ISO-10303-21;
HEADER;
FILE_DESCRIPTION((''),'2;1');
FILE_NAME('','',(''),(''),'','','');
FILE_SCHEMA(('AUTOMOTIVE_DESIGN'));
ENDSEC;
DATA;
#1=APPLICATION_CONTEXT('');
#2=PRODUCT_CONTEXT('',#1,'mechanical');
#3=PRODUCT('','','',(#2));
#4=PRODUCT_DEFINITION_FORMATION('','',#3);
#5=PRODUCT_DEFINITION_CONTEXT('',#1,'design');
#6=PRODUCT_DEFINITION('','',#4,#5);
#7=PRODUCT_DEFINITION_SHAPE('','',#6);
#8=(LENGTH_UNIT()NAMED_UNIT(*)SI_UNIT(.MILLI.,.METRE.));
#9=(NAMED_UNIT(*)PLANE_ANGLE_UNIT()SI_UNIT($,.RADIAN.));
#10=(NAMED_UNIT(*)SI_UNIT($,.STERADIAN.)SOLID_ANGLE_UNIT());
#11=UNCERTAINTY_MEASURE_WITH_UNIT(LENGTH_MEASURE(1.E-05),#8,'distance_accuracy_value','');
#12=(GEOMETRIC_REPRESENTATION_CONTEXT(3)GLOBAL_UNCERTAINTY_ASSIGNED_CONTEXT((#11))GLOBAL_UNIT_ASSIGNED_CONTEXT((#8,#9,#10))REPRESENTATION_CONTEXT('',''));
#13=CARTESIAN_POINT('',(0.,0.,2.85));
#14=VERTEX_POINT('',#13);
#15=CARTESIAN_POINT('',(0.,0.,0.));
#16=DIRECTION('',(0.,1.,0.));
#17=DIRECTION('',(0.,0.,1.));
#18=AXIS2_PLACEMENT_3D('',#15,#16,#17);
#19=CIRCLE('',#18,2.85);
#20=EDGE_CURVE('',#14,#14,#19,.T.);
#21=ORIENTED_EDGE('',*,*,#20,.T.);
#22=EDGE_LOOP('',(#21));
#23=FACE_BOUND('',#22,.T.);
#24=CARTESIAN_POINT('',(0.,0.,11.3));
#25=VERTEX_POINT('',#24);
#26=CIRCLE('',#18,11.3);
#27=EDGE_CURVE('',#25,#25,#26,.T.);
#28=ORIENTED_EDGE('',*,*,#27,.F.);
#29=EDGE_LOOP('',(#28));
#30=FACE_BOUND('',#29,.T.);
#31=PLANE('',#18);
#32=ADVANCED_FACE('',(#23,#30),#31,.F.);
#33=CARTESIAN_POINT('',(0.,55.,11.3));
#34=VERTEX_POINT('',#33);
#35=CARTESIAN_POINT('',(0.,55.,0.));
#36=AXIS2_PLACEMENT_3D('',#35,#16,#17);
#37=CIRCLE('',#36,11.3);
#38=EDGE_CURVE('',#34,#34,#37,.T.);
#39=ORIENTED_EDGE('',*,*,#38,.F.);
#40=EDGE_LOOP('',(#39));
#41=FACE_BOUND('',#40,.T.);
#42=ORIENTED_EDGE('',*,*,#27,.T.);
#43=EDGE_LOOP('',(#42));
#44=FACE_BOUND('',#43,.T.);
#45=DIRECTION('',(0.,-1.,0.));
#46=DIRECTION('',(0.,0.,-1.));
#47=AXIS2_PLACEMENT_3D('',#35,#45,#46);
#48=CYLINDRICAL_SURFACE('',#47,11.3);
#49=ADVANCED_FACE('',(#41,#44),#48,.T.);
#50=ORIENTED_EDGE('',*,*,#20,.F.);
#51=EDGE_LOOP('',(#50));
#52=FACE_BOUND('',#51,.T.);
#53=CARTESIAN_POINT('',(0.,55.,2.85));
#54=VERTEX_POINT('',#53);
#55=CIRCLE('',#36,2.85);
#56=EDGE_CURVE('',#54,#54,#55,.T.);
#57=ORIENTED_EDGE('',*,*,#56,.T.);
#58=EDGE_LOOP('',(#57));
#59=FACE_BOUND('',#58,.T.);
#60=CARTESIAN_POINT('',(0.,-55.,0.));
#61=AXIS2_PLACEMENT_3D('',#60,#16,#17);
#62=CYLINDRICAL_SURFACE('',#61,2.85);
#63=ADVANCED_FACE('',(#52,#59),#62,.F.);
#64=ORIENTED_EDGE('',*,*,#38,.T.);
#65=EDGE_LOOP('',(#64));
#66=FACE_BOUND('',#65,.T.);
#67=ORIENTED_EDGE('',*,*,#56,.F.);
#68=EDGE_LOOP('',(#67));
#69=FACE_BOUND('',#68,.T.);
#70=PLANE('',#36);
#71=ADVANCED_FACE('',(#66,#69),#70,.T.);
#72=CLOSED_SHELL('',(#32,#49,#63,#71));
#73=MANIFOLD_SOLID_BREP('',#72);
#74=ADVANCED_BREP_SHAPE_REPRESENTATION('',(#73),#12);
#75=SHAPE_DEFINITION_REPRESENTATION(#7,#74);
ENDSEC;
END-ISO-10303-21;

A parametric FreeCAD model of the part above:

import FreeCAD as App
import Part
import Sketcher
from FreeCAD import Vector

doc = App.newDocument("Part")
body = doc.addObject("PartDesign::Body", "Body")

# Sketch on XZ plane
sketch1 = doc.addObject("Sketcher::SketchObject", "Sketch")
body.addObject(sketch1)
sketch1.AttachmentSupport = (doc.XZ_Plane, [""])
sketch1.MapMode = "FlatFace"
sketch1.addGeometry(Part.Circle(Vector(0, 0, 0), Vector(0, 0, 1), 11), False)
sketch1.addConstraint([
    Sketcher.Constraint("Coincident", 0, 3, -1, 1),
    Sketcher.Constraint("Diameter", 0, 22.6),
])
pad1 = doc.addObject("PartDesign::Pad", "Pad")
body.addObject(pad1)
pad1.Profile = sketch1
pad1.Length = 55
pad1.Reversed = True

# Sketch on XZ plane
sketch2 = doc.addObject("Sketcher::SketchObject", "Sketch001")
body.addObject(sketch2)
sketch2.AttachmentSupport = (doc.XZ_Plane, [""])
sketch2.MapMode = "FlatFace"
sketch2.AttachmentOffset = App.Placement(Vector(0, 0, -55), App.Rotation())
sketch2.addGeometry(Part.Circle(Vector(0, 0, 0), Vector(0, 0, 1), 2.9), False)
sketch2.addConstraint([
    Sketcher.Constraint("Coincident", 0, 3, -1, 1),
    Sketcher.Constraint("Diameter", 0, 5.7),
])
pocket1 = doc.addObject("PartDesign::Pocket", "Pocket")
body.addObject(pocket1)
pocket1.Profile = sketch2
pocket1.Length = 110
pocket1.Reversed = True

doc.recompute()
